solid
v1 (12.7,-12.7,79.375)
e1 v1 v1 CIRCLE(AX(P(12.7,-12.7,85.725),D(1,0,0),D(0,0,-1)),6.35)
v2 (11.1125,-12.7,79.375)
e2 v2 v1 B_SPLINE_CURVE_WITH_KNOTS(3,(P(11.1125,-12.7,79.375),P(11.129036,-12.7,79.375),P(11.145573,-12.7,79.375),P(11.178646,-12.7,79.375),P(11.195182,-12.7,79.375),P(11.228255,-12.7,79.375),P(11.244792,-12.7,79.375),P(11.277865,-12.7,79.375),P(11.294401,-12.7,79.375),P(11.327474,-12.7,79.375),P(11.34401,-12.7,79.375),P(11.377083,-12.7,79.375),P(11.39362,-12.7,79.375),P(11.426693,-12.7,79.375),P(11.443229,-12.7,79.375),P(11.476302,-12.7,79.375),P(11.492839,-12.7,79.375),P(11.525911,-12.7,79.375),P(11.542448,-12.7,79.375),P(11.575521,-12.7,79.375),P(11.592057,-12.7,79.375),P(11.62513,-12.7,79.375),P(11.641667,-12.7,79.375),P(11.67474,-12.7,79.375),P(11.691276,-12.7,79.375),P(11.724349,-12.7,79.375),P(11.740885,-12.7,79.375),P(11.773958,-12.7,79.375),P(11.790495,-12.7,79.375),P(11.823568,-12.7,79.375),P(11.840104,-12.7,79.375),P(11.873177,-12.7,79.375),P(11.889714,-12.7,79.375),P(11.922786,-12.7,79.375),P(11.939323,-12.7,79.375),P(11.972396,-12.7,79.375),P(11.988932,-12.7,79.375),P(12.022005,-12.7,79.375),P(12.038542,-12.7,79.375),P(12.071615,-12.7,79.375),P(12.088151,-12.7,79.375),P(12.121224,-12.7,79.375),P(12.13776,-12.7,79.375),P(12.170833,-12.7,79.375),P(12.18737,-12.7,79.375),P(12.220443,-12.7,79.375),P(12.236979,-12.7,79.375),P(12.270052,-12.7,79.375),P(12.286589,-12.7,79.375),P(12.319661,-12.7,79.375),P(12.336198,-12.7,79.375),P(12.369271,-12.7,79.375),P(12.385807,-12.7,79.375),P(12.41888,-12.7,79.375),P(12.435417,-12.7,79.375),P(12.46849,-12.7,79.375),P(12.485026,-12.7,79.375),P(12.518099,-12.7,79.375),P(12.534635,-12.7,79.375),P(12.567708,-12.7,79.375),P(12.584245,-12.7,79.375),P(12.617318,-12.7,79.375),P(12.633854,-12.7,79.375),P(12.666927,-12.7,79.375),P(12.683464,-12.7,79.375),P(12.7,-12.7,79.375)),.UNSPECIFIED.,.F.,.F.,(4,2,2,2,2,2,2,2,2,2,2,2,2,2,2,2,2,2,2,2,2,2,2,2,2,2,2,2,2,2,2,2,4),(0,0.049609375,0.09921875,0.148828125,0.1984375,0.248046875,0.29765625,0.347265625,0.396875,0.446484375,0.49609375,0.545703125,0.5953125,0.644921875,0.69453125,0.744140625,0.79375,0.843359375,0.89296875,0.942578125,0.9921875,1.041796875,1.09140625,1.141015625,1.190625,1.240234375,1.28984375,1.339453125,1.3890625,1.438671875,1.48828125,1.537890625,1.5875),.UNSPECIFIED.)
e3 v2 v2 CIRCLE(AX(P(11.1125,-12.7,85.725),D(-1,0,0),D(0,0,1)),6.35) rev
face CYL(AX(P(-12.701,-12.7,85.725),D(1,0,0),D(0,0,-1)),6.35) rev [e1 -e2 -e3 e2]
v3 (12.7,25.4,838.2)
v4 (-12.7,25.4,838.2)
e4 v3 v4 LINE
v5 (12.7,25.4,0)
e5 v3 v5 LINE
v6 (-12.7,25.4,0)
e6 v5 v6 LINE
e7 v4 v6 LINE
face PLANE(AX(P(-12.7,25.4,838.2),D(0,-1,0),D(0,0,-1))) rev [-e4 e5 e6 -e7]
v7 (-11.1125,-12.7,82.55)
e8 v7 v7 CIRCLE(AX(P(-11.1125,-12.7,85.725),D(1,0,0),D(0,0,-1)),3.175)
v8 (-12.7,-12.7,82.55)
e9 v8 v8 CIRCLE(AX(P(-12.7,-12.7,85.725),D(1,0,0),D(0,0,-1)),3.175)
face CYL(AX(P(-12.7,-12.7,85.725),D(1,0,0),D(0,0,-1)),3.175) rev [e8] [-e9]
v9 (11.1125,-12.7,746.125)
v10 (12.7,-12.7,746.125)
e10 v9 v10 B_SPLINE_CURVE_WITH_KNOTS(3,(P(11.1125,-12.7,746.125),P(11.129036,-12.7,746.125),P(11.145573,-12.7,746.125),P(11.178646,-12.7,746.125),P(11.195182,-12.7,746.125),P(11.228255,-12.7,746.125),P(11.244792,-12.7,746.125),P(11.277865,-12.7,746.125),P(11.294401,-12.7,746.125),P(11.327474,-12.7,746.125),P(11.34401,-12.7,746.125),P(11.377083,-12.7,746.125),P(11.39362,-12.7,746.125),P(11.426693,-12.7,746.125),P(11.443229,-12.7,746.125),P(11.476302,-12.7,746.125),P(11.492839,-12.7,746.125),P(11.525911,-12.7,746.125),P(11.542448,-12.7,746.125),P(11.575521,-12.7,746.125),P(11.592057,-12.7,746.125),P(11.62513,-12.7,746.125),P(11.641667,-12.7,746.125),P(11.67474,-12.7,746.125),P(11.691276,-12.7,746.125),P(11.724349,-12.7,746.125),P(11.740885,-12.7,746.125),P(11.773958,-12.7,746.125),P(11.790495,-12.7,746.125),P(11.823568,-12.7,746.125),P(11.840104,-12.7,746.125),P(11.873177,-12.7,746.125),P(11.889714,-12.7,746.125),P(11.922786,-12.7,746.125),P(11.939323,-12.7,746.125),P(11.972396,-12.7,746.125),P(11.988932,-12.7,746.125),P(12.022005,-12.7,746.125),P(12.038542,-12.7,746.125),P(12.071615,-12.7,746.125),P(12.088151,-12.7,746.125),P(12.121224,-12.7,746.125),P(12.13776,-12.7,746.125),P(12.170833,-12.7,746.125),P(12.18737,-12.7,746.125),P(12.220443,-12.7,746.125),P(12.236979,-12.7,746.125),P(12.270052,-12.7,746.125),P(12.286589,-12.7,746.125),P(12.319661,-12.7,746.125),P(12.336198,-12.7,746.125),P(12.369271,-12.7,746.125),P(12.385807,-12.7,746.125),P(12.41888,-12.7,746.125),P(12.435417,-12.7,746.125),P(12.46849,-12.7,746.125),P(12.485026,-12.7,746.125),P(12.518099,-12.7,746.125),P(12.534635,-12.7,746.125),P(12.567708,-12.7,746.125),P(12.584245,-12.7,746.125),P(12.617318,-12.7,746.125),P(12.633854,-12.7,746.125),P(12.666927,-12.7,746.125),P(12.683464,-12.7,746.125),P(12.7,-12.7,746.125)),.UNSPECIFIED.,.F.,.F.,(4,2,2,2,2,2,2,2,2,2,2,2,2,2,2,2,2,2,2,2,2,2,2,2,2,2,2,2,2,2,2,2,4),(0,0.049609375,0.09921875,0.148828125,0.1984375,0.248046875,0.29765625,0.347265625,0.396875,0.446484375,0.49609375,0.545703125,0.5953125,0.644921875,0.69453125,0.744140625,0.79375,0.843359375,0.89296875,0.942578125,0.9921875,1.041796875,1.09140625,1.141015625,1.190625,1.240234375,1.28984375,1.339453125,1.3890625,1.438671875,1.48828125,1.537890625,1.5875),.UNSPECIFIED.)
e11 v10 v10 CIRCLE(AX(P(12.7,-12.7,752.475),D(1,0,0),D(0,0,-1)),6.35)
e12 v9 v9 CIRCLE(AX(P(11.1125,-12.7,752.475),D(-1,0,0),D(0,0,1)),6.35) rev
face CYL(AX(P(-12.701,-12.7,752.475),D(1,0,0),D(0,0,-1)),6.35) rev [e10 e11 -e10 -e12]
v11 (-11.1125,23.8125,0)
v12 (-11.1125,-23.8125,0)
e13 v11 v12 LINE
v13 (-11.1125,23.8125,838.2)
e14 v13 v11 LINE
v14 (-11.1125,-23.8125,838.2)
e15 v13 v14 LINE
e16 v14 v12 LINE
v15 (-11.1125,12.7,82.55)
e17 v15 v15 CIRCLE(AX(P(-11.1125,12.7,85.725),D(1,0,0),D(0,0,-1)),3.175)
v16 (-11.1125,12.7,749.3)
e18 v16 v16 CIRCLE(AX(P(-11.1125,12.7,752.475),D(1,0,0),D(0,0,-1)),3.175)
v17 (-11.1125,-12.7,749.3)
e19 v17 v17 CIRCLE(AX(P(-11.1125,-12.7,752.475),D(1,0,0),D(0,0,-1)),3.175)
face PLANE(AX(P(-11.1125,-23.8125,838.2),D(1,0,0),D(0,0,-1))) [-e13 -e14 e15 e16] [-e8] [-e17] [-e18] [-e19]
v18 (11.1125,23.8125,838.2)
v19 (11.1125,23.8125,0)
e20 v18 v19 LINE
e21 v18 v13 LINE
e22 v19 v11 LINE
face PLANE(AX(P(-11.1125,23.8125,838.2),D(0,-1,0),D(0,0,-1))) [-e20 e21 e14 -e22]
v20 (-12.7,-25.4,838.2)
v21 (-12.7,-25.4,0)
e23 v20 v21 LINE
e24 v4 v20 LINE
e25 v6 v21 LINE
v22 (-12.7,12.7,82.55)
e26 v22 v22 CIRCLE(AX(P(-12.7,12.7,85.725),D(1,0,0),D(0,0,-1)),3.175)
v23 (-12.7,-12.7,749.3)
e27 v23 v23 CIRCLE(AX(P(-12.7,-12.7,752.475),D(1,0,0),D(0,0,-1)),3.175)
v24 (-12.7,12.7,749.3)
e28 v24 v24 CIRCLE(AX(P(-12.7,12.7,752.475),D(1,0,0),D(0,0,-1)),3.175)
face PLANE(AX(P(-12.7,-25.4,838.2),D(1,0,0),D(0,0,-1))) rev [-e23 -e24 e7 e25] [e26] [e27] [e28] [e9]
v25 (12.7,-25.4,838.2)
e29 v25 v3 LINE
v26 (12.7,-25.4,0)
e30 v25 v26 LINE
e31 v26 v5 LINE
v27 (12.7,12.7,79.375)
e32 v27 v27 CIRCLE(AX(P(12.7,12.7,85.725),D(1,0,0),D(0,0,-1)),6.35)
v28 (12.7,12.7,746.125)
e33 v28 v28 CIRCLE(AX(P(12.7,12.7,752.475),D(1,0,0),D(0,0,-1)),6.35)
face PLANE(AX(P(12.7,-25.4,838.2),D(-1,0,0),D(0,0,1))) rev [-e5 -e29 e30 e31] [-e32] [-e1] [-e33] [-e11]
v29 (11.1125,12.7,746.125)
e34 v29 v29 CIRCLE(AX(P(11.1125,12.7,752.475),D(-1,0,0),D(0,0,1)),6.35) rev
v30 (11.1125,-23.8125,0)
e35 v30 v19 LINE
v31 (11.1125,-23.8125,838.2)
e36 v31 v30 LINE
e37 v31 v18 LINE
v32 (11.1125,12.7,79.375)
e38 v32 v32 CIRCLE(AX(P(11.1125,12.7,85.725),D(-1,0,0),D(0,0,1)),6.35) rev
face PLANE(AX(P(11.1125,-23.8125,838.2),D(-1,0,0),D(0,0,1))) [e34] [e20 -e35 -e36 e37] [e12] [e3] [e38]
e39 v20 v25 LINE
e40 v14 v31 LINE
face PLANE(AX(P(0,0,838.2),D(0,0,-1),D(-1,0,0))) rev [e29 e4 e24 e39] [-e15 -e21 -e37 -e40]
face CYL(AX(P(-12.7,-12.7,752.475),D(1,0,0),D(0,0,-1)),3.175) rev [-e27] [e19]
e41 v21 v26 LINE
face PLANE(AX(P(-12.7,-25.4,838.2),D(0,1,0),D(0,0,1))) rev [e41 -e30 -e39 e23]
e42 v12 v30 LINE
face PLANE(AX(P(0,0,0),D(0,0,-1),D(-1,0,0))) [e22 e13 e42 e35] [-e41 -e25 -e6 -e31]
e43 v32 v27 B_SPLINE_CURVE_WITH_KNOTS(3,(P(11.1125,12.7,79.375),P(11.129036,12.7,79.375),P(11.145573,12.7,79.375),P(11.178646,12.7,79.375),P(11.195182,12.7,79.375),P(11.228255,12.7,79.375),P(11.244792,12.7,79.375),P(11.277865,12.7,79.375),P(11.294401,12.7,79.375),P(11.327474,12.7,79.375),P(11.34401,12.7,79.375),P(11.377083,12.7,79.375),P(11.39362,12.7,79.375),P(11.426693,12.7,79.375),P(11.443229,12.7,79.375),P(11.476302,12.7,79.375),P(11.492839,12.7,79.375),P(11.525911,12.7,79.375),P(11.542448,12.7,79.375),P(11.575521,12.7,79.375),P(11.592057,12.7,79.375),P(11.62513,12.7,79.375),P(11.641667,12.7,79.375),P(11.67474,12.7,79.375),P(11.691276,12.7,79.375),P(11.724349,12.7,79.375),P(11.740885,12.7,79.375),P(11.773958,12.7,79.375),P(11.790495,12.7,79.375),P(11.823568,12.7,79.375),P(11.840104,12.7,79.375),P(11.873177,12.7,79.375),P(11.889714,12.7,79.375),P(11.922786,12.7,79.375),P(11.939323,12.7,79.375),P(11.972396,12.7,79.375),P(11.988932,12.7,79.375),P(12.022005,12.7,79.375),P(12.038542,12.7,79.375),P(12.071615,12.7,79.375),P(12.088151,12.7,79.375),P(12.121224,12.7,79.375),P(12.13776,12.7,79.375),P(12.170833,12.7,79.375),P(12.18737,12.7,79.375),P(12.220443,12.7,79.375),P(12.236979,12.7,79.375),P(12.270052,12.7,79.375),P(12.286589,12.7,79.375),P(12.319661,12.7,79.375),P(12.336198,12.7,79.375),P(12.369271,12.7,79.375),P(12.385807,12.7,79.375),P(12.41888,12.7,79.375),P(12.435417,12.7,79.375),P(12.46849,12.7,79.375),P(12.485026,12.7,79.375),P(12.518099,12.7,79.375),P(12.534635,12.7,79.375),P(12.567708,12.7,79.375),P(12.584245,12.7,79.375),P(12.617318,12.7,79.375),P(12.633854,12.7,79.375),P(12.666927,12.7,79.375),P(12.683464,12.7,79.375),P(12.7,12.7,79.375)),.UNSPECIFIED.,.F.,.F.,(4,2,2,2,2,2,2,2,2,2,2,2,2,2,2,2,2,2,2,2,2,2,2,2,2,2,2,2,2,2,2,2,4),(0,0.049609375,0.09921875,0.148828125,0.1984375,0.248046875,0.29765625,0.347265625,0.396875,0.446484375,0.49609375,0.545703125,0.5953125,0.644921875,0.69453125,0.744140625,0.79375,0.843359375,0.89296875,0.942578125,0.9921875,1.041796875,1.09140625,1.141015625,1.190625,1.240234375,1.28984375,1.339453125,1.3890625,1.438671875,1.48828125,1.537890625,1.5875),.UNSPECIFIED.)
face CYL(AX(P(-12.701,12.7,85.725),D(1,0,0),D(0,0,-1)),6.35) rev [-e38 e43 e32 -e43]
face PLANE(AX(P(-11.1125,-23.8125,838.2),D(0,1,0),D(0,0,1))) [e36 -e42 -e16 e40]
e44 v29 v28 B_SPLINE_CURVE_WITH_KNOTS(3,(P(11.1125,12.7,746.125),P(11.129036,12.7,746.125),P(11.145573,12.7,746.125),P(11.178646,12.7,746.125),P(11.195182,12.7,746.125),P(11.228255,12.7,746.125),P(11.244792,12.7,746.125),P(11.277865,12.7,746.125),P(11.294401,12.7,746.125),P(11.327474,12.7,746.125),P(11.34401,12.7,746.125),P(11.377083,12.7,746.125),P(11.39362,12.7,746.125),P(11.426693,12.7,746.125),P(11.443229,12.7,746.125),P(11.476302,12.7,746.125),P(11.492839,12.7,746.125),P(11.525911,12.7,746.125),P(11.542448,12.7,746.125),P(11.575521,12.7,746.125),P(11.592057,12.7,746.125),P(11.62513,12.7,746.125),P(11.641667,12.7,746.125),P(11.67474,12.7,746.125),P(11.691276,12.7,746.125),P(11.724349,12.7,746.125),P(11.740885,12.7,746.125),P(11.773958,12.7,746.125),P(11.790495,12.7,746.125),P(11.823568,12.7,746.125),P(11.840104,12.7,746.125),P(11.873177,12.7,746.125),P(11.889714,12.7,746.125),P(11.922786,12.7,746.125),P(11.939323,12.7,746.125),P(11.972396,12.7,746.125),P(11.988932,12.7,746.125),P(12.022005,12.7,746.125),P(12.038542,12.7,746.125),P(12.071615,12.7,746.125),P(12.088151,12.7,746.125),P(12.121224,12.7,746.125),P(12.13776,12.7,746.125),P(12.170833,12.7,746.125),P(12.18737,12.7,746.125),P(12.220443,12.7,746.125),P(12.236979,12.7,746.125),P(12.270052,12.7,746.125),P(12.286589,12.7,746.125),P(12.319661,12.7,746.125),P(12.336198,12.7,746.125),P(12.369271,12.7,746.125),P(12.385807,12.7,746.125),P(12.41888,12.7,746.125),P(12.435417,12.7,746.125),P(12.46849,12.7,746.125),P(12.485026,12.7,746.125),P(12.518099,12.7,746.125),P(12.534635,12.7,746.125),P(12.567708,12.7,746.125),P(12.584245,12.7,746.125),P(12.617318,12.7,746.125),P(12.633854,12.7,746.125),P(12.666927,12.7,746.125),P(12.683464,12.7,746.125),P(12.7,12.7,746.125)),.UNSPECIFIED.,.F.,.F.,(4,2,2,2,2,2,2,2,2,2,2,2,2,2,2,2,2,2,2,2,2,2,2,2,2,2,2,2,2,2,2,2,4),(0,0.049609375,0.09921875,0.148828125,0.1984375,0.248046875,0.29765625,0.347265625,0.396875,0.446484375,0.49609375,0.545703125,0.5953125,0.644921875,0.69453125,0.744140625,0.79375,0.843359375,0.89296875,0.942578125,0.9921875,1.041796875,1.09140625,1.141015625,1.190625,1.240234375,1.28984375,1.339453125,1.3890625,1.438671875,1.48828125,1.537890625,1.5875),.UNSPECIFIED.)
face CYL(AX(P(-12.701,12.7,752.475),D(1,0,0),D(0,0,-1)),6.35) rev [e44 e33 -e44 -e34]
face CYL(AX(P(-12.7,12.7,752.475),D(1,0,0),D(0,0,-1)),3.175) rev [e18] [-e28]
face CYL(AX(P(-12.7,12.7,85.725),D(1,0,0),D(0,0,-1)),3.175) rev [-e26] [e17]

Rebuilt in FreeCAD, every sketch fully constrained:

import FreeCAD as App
import Part
import Sketcher

V = App.Vector
Q = App.Units.Quantity


def add_polygon(sketch, points):
    """Adds a closed chain of lines whose ends are joined by coincident constraints."""
    first, n = sketch.GeometryCount, len(points)
    for a, b in zip(points, points[1:] + points[:1]):
        sketch.addGeometry(Part.LineSegment(App.Vector(*a, 0), App.Vector(*b, 0)), False)
    for i in range(n):
        sketch.addConstraint(Sketcher.Constraint("Coincident", first + i, 2, first + (i + 1) % n, 1))

doc = App.newDocument("Part")
params = doc.addObject("Spreadsheet::Sheet", "Params")
for row, (alias, value) in enumerate([
    ("sketch1_width", "1 in"),
    ("sketch1_height", "2 in"),
    ("sketch1_width2", "0.875 in"),
    ("sketch1_height2", "1.875 in"),
    ("pad1_length", "33 in"),
    ("sketch2_diameter", "0.25 in"),
    ("sketch3_diameter", "0.5 in"),
    ("pocket2_length", "0.0625 in"),
    ("sketch4_diameter", "0.5 in"),
    ("pocket3_length", "0.0625 in"),
    ("sketch5_diameter", "0.5 in"),
    ("pocket4_length", "0.0625 in"),
    ("sketch6_diameter", "0.5 in"),
    ("pocket5_length", "0.0625 in"),
], start=1):
    params.set(f"A{row}", alias)
    params.set(f"B{row}", "=" + value)
    params.setAlias(f"B{row}", alias)

body = doc.addObject("PartDesign::Body", "Body")

sketch1 = doc.addObject("Sketcher::SketchObject", "Sketch")
body.addObject(sketch1)
sketch1.AttachmentSupport = (doc.XY_Plane, [""])
sketch1.MapMode = "FlatFace"
add_polygon(sketch1, [(-13, 25), (-13, -25), (13, -25), (13, 25)])
add_polygon(sketch1, [(11, -24), (-11, -24), (-11, 24), (11, 24)])
sketch1.addConstraint(Sketcher.Constraint("Vertical", 0))
sketch1.addConstraint(Sketcher.Constraint("Horizontal", 1))
sketch1.addConstraint(Sketcher.Constraint("Vertical", 2))
sketch1.addConstraint(Sketcher.Constraint("Horizontal", 3))
sketch1.addConstraint(Sketcher.Constraint("Horizontal", 4))
sketch1.addConstraint(Sketcher.Constraint("Vertical", 5))
sketch1.addConstraint(Sketcher.Constraint("Horizontal", 6))
sketch1.addConstraint(Sketcher.Constraint("Vertical", 7))
sketch1.addConstraint(Sketcher.Constraint("Symmetric", 0, 2, 2, 2, -1, 1))
sketch1.addConstraint(Sketcher.Constraint("Symmetric", 4, 2, 6, 2, -1, 1))
sketch1.addConstraint(Sketcher.Constraint("DistanceX", 1, 1, 1, 2, Q("1 in")))
sketch1.addConstraint(Sketcher.Constraint("DistanceY", 0, 2, 0, 1, Q("2 in")))
sketch1.addConstraint(Sketcher.Constraint("DistanceX", 4, 2, 4, 1, Q("0.875 in")))
sketch1.addConstraint(Sketcher.Constraint("DistanceY", 5, 1, 5, 2, Q("1.875 in")))
sketch1.setExpression("Constraints[18]", "Params.sketch1_width")
sketch1.setExpression("Constraints[19]", "Params.sketch1_height")
sketch1.setExpression("Constraints[20]", "Params.sketch1_width2")
sketch1.setExpression("Constraints[21]", "Params.sketch1_height2")
pad1 = doc.addObject("PartDesign::Pad", "Pad")
body.addObject(pad1)
pad1.Profile = sketch1
pad1.setExpression("Length", "Params.pad1_length")

sketch2 = doc.addObject("Sketcher::SketchObject", "Sketch001")
body.addObject(sketch2)
sketch2.AttachmentSupport = (doc.YZ_Plane, [""])
sketch2.MapMode = "FlatFace"
sketch2.AttachmentOffset = App.Placement(V(0, 0, 0.5 * 25.4), App.Rotation())
sketch2.addGeometry(Part.Circle(V(12.7, 85.7, 0), V(0, 0, 1), 3.2), False)
sketch2.addGeometry(Part.Circle(V(-12.7, 85.7, 0), V(0, 0, 1), 3.2), False)
sketch2.addGeometry(Part.Circle(V(12.7, 752.5, 0), V(0, 0, 1), 3.2), False)
sketch2.addGeometry(Part.Circle(V(-12.7, 752.5, 0), V(0, 0, 1), 3.2), False)
sketch2.addConstraint(Sketcher.Constraint("Equal", 0, 1))
sketch2.addConstraint(Sketcher.Constraint("Equal", 1, 2))
sketch2.addConstraint(Sketcher.Constraint("Equal", 2, 3))
sketch2.addConstraint(Sketcher.Constraint("Symmetric", 0, 3, 1, 3, -2))
sketch2.addConstraint(Sketcher.Constraint("Symmetric", 2, 3, 3, 3, -2))
sketch2.addConstraint(Sketcher.Constraint("Vertical", 0, 3, 2, 3))
sketch2.addConstraint(Sketcher.Constraint("Diameter", 0, Q("0.25 in")))
sketch2.addConstraint(Sketcher.Constraint("DistanceX", 1, 3, 0, 3, Q("1 in")))
sketch2.addConstraint(Sketcher.Constraint("DistanceY", 0, 3, 2, 3, Q("26.25 in")))
sketch2.addConstraint(Sketcher.Constraint("DistanceY", -1, 1, 0, 3, Q("3.375 in")))
sketch2.setExpression("Constraints[6]", "Params.sketch2_diameter")
pocket1 = doc.addObject("PartDesign::Pocket", "Pocket")
body.addObject(pocket1)
pocket1.Profile = sketch2
pocket1.Type = "ThroughAll"

sketch3 = doc.addObject("Sketcher::SketchObject", "Sketch002")
body.addObject(sketch3)
sketch3.AttachmentSupport = (doc.YZ_Plane, [""])
sketch3.MapMode = "FlatFace"
sketch3.AttachmentOffset = App.Placement(V(0, 0, 0.5 * 25.4), App.Rotation())
sketch3.addGeometry(Part.Circle(V(13, 752, 0), V(0, 0, 1), 6), False)
sketch3.addConstraint(Sketcher.Constraint("Diameter", 0, Q("0.5 in")))
sketch3.addConstraint(Sketcher.Constraint("DistanceX", -1, 1, 0, 3, Q("0.5 in")))
sketch3.addConstraint(Sketcher.Constraint("DistanceY", -1, 1, 0, 3, Q("29.625 in")))
sketch3.setExpression("Constraints[0]", "Params.sketch3_diameter")
pocket2 = doc.addObject("PartDesign::Pocket", "Pocket001")
body.addObject(pocket2)
pocket2.Profile = sketch3
pocket2.setExpression("Length", "Params.pocket2_length")

sketch4 = doc.addObject("Sketcher::SketchObject", "Sketch003")
body.addObject(sketch4)
sketch4.AttachmentSupport = (doc.YZ_Plane, [""])
sketch4.MapMode = "FlatFace"
sketch4.AttachmentOffset = App.Placement(V(0, 0, 0.5 * 25.4), App.Rotation())
sketch4.addGeometry(Part.Circle(V(-13, 752, 0), V(0, 0, 1), 6), False)
sketch4.addConstraint(Sketcher.Constraint("Diameter", 0, Q("0.5 in")))
sketch4.addConstraint(Sketcher.Constraint("DistanceX", 0, 3, -1, 1, Q("0.5 in")))
sketch4.addConstraint(Sketcher.Constraint("DistanceY", -1, 1, 0, 3, Q("29.625 in")))
sketch4.setExpression("Constraints[0]", "Params.sketch4_diameter")
pocket3 = doc.addObject("PartDesign::Pocket", "Pocket002")
body.addObject(pocket3)
pocket3.Profile = sketch4
pocket3.setExpression("Length", "Params.pocket3_length")

sketch5 = doc.addObject("Sketcher::SketchObject", "Sketch004")
body.addObject(sketch5)
sketch5.AttachmentSupport = (doc.YZ_Plane, [""])
sketch5.MapMode = "FlatFace"
sketch5.AttachmentOffset = App.Placement(V(0, 0, 0.5 * 25.4), App.Rotation())
sketch5.addGeometry(Part.Circle(V(13, 86, 0), V(0, 0, 1), 6), False)
sketch5.addConstraint(Sketcher.Constraint("Diameter", 0, Q("0.5 in")))
sketch5.addConstraint(Sketcher.Constraint("DistanceX", -1, 1, 0, 3, Q("0.5 in")))
sketch5.addConstraint(Sketcher.Constraint("DistanceY", -1, 1, 0, 3, Q("3.375 in")))
sketch5.setExpression("Constraints[0]", "Params.sketch5_diameter")
pocket4 = doc.addObject("PartDesign::Pocket", "Pocket003")
body.addObject(pocket4)
pocket4.Profile = sketch5
pocket4.setExpression("Length", "Params.pocket4_length")

sketch6 = doc.addObject("Sketcher::SketchObject", "Sketch005")
body.addObject(sketch6)
sketch6.AttachmentSupport = (doc.YZ_Plane, [""])
sketch6.MapMode = "FlatFace"
sketch6.AttachmentOffset = App.Placement(V(0, 0, 0.5 * 25.4), App.Rotation())
sketch6.addGeometry(Part.Circle(V(-13, 86, 0), V(0, 0, 1), 6), False)
sketch6.addConstraint(Sketcher.Constraint("Diameter", 0, Q("0.5 in")))
sketch6.addConstraint(Sketcher.Constraint("DistanceX", 0, 3, -1, 1, Q("0.5 in")))
sketch6.addConstraint(Sketcher.Constraint("DistanceY", -1, 1, 0, 3, Q("3.375 in")))
sketch6.setExpression("Constraints[0]", "Params.sketch6_diameter")
pocket5 = doc.addObject("PartDesign::Pocket", "Pocket004")
body.addObject(pocket5)
pocket5.Profile = sketch6
pocket5.setExpression("Length", "Params.pocket5_length")

doc.recompute()
